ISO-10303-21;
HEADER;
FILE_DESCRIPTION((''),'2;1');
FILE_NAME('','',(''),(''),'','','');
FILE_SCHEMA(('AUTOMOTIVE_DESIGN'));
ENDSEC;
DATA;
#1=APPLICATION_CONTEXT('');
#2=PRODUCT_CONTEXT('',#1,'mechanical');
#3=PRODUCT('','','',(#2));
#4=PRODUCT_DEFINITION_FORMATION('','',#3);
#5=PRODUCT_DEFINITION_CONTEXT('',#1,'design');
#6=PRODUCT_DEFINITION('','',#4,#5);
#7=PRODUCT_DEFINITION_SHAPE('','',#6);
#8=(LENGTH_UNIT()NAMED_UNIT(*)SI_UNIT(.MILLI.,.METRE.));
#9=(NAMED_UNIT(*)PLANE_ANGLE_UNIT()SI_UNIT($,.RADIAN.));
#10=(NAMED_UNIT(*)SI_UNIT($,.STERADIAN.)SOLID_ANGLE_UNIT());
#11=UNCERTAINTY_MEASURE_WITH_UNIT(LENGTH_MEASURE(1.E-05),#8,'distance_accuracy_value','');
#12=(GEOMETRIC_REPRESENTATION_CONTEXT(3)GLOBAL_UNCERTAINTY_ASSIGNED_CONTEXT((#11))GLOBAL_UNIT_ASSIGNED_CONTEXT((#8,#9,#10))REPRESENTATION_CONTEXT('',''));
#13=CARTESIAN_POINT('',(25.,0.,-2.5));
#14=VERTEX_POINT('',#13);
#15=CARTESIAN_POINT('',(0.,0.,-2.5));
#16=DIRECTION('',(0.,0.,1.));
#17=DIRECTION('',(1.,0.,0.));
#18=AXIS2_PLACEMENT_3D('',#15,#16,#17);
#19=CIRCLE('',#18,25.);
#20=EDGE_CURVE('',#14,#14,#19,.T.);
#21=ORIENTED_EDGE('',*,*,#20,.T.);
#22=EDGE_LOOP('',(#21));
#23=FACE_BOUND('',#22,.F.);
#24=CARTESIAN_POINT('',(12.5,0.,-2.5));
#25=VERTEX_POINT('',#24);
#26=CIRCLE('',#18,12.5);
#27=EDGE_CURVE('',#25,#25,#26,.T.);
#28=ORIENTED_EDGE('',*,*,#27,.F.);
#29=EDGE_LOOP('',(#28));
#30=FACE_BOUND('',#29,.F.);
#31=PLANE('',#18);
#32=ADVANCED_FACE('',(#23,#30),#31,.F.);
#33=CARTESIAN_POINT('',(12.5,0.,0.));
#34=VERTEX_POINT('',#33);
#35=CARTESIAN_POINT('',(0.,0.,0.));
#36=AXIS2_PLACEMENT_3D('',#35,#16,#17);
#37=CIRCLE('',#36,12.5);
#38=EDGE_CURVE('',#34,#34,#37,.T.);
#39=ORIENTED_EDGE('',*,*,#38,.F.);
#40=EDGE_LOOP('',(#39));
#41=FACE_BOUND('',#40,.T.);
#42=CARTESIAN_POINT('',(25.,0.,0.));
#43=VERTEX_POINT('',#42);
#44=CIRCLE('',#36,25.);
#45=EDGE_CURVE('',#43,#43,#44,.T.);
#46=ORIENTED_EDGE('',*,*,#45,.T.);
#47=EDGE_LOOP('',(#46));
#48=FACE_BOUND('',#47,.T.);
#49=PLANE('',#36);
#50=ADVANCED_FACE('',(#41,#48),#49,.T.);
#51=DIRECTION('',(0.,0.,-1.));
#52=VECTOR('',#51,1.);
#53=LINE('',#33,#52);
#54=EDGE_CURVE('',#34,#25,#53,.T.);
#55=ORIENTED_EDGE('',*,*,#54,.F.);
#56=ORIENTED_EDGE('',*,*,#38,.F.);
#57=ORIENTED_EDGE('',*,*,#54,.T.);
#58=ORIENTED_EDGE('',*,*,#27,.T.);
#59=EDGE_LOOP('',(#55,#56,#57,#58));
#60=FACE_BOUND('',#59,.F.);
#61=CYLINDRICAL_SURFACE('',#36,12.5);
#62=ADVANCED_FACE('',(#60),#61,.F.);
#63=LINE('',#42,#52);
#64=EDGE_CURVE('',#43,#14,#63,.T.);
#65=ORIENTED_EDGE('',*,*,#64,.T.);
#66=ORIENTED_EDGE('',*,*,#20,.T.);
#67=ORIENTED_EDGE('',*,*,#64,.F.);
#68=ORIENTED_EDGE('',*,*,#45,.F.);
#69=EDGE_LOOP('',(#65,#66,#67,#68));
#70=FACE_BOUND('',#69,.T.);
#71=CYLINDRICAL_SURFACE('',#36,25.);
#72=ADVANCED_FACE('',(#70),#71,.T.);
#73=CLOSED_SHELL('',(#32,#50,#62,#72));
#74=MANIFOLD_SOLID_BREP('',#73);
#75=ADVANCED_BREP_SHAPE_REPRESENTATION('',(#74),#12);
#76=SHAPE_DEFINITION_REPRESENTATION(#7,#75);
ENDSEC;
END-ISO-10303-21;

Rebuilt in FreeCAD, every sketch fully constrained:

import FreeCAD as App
import Part
import Sketcher
from FreeCAD import Vector

doc = App.newDocument("Part")
body = doc.addObject("PartDesign::Body", "Body")

# Sketch on XY plane
sketch1 = body.newObject("Sketcher::SketchObject", "Sketch")
sketch1.AttachmentSupport = (doc.getObject("XY_Plane"), [""])
sketch1.MapMode = "FlatFace"
sketch1.addGeometry(Part.Circle(Vector(0, 0, 0), Vector(0, 0, 1), 25), False)
sketch1.addGeometry(Part.Circle(Vector(0, 0, 0), Vector(0, 0, 1), 12), False)
sketch1.addConstraint(Sketcher.Constraint("Coincident", 0, 3, -1, 1))
sketch1.addConstraint(Sketcher.Constraint("Coincident", 1, 3, -1, 1))
sketch1.addConstraint(Sketcher.Constraint("Diameter", 0, 50.0))
sketch1.addConstraint(Sketcher.Constraint("Diameter", 1, 25.0))
pad1 = body.newObject("PartDesign::Pad", "Pad")
pad1.Profile = sketch1
pad1.Length = 2.5
pad1.Reversed = True

doc.recompute()
